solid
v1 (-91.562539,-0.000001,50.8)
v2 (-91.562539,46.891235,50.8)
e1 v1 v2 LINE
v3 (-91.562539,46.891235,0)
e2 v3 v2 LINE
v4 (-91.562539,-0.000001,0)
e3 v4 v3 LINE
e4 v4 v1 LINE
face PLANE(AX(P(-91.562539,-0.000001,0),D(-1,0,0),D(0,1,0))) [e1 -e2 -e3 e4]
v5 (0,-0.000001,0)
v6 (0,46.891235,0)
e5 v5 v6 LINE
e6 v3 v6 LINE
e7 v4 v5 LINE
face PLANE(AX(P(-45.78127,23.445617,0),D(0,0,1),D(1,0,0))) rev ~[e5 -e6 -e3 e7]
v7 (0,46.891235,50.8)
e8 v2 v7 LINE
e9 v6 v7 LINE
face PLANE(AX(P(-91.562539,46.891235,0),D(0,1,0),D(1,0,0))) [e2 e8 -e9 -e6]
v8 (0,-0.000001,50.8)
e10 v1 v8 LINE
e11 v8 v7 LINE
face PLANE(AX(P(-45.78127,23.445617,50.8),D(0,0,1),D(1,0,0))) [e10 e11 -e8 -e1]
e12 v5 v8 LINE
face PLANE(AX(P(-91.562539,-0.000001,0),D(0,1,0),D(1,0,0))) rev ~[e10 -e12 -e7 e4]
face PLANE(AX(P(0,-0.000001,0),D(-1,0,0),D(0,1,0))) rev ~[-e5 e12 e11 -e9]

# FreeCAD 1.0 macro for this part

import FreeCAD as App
import Part
import Sketcher


def add_polygon(sketch, points):
    """Adds a closed chain of lines whose ends are joined by coincident constraints."""
    first, n = sketch.GeometryCount, len(points)
    for a, b in zip(points, points[1:] + points[:1]):
        sketch.addGeometry(Part.LineSegment(App.Vector(*a, 0), App.Vector(*b, 0)), False)
    for i in range(n):
        sketch.addConstraint(Sketcher.Constraint("Coincident", first + i, 2, first + (i + 1) % n, 1))

doc = App.newDocument("Part")
params = doc.addObject("Spreadsheet::Sheet", "Params")
for row, (alias, value) in enumerate([
    ("pad1_length", "2 in"),
], start=1):
    params.set(f"A{row}", alias)
    params.set(f"B{row}", "=" + value)
    params.setAlias(f"B{row}", alias)

body = doc.addObject("PartDesign::Body", "Body")

# Sketch on XY plane
sketch1 = body.newObject("Sketcher::SketchObject", "Sketch")
sketch1.AttachmentSupport = (doc.getObject("XY_Plane"), [""])
sketch1.MapMode = "FlatFace"
add_polygon(sketch1, [(-91.562539, 46.891235), (-91.562539, 0), (0, 0), (0, 46.891235)])  # lines 0-3
sketch1.addConstraint([
    Sketcher.Constraint("Vertical", 0),
    Sketcher.Constraint("Horizontal", 1),
    Sketcher.Constraint("Vertical", 2),
    Sketcher.Constraint("Horizontal", 3),
    Sketcher.Constraint("Coincident", 1, 2, -1, 1),
    Sketcher.Constraint("DistanceX", 1, 1, 1, 2, 91.562539),
    Sketcher.Constraint("DistanceY", 0, 2, 0, 1, 46.891235),
])
pad1 = body.newObject("PartDesign::Pad", "Pad")
pad1.Profile = sketch1
pad1.setExpression("Length", "Params.pad1_length")

doc.recompute()
